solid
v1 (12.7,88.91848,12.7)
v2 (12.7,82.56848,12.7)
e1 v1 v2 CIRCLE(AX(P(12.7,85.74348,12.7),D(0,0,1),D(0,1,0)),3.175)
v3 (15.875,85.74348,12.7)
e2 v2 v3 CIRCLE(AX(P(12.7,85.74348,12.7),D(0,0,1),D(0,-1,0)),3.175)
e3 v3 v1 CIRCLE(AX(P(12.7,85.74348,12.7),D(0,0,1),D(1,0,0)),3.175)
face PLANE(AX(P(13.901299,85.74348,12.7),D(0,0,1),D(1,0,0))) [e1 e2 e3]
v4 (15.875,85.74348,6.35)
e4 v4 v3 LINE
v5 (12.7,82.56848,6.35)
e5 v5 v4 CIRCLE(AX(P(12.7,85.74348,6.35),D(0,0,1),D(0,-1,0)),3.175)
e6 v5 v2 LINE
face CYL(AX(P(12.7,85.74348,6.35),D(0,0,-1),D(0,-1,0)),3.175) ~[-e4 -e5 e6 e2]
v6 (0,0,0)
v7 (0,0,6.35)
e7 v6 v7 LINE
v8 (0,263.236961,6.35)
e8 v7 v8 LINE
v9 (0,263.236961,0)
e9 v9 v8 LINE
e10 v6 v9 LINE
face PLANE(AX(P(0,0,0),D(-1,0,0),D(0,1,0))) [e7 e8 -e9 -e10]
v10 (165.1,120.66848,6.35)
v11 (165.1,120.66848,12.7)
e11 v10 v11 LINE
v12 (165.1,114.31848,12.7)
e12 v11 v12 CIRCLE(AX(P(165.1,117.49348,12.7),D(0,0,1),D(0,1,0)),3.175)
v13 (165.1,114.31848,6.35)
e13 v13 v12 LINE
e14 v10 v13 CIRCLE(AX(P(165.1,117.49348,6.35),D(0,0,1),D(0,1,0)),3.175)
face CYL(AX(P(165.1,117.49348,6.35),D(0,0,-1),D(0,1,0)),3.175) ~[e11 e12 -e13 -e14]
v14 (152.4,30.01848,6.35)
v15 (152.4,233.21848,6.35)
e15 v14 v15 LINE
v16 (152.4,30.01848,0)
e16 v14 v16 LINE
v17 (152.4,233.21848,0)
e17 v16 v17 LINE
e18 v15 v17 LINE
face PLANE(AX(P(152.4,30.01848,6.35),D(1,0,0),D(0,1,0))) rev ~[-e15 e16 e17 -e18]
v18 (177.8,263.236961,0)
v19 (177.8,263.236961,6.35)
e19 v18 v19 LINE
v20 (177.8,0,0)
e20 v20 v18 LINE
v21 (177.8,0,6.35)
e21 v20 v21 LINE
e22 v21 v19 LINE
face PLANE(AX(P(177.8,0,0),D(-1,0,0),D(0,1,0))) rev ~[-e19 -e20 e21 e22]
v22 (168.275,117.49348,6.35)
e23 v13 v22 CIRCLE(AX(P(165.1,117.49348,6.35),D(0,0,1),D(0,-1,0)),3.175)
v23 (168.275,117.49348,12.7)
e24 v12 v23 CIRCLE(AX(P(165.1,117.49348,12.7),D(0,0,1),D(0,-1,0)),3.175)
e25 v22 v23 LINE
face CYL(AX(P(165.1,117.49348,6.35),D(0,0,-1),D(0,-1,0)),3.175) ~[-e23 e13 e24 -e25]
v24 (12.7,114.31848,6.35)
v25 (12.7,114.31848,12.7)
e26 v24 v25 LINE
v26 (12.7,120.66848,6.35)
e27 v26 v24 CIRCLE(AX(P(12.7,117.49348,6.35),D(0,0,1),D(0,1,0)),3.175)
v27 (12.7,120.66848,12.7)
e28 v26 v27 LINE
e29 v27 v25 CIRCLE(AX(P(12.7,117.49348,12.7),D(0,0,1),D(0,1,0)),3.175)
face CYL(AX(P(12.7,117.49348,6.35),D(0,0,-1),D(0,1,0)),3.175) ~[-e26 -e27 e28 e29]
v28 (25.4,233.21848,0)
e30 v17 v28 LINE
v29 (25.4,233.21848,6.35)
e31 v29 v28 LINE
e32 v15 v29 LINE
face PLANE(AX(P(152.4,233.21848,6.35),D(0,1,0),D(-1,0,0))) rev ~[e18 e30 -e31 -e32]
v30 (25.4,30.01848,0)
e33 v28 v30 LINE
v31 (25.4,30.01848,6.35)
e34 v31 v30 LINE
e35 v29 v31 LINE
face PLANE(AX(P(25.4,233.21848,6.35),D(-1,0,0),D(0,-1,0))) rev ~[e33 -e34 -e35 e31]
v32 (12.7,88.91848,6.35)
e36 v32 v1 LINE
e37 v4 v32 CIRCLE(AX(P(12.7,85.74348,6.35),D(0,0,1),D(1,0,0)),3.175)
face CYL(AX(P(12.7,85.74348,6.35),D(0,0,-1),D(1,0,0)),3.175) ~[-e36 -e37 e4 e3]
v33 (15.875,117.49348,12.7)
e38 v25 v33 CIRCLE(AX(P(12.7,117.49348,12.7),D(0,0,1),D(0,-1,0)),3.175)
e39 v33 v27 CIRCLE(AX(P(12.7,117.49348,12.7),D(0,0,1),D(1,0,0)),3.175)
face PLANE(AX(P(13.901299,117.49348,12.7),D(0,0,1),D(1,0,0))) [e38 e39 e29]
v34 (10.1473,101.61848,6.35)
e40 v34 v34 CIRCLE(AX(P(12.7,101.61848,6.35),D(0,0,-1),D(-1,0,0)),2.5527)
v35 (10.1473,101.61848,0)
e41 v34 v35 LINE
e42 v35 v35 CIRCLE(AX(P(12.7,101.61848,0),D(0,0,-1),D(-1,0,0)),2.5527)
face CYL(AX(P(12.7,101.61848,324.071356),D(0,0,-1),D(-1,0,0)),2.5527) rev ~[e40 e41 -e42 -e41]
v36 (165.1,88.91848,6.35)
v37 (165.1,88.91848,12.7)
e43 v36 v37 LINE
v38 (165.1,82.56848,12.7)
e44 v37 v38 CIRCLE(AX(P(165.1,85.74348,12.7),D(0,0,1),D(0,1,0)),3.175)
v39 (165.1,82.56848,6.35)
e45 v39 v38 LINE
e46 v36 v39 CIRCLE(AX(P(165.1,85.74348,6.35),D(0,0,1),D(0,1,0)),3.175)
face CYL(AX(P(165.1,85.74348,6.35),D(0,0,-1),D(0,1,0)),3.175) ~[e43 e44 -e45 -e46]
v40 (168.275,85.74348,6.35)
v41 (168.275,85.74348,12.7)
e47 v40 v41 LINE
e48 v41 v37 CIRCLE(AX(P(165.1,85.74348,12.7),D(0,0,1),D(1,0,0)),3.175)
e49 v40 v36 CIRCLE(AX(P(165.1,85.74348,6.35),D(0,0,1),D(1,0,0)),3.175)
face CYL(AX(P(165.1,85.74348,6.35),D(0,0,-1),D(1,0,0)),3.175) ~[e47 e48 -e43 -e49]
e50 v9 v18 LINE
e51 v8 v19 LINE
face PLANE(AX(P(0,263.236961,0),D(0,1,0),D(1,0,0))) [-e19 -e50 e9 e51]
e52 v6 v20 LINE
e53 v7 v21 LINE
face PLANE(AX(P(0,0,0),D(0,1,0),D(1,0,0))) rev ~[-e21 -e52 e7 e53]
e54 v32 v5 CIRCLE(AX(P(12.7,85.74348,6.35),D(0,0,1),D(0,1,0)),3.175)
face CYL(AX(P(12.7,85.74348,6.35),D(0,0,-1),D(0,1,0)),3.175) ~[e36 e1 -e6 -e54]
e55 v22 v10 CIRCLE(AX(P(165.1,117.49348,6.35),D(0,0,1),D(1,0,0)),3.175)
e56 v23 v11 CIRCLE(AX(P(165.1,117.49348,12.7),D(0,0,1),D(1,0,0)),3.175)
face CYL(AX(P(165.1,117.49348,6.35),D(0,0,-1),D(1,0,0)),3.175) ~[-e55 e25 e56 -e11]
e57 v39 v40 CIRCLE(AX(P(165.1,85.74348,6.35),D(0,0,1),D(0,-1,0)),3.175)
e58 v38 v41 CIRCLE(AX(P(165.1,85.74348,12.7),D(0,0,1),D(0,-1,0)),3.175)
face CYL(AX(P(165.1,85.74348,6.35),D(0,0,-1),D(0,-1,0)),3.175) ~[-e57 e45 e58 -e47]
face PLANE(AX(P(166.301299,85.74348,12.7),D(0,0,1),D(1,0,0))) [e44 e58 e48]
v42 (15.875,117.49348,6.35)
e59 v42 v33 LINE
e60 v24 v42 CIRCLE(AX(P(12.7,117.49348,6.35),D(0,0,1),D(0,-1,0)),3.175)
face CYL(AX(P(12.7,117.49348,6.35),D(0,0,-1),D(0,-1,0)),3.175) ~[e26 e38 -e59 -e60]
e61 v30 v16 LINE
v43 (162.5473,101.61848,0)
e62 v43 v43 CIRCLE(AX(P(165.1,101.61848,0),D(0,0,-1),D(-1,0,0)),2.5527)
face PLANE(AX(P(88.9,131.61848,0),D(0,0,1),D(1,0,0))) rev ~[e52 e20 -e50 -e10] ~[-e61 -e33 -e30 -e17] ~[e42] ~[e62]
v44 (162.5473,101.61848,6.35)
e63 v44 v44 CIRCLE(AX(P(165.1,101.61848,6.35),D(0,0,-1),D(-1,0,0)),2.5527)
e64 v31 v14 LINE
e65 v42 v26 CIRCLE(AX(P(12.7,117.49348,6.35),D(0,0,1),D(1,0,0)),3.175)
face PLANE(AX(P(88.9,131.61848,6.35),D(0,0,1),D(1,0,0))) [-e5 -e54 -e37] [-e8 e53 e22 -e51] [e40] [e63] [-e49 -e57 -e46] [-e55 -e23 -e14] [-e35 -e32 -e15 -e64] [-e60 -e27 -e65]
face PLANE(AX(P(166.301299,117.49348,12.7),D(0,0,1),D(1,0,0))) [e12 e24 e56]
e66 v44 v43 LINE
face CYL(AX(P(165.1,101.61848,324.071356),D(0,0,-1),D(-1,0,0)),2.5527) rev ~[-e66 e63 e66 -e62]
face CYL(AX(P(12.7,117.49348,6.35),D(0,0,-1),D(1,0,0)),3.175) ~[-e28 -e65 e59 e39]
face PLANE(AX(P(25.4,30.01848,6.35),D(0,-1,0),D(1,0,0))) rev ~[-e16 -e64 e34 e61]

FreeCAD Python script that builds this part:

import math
import FreeCAD as App
import Part
import Sketcher

V = App.Vector
Q = App.Units.Quantity

doc = App.newDocument("Part")
params = doc.addObject("Spreadsheet::Sheet", "Params")
for row, (alias, value) in enumerate([
    ("sketch1_width", "7 in"),
    ("pad1_length", "0.25 in"),
    ("sketch2_width", "5 in"),
    ("sketch2_height", "8 in"),
    ("pocket1_length", "25 mm"),
    ("sketch3_diameter", "0.201 in"),
    ("hole_diameter", "0.201 in"),
    ("sketch4_radius", "0.125 in"),
    ("pad2_length", "0.25 in"),
], start=1):
    params.set(f"A{row}", alias)
    params.set(f"B{row}", "=" + value)
    params.setAlias(f"B{row}", alias)

body = doc.addObject("PartDesign::Body", "Body")

sketch1 = body.newObject("Sketcher::SketchObject", "Sketch")
sketch1.AttachmentSupport = (doc.getObject("XY_Plane"), [""])
sketch1.MapMode = "FlatFace"
sketch1.addGeometry(Part.LineSegment(V(0, 263, 0), V(0, 0, 0)), False)
sketch1.addGeometry(Part.LineSegment(V(0, 0, 0), V(178, 0, 0)), False)
sketch1.addGeometry(Part.LineSegment(V(178, 0, 0), V(178, 263, 0)), False)
sketch1.addGeometry(Part.LineSegment(V(178, 263, 0), V(0, 263, 0)), False)
sketch1.addConstraint(Sketcher.Constraint("Coincident", 0, 2, 1, 1))
sketch1.addConstraint(Sketcher.Constraint("Coincident", 1, 2, 2, 1))
sketch1.addConstraint(Sketcher.Constraint("Coincident", 2, 2, 3, 1))
sketch1.addConstraint(Sketcher.Constraint("Coincident", 3, 2, 0, 1))
sketch1.addConstraint(Sketcher.Constraint("Vertical", 0))
sketch1.addConstraint(Sketcher.Constraint("Horizontal", 1))
sketch1.addConstraint(Sketcher.Constraint("Vertical", 2))
sketch1.addConstraint(Sketcher.Constraint("Horizontal", 3))
sketch1.addConstraint(Sketcher.Constraint("Coincident", 0, 2, -1, 1))
sketch1.addConstraint(Sketcher.Constraint("DistanceX", 1, 1, 1, 2, Q("7 in")))
sketch1.addConstraint(Sketcher.Constraint("DistanceY", 0, 2, 0, 1, 263.236961))
sketch1.setExpression("Constraints[9]", "Params.sketch1_width")
pad1 = body.newObject("PartDesign::Pad", "Pad")
pad1.Profile = sketch1
pad1.setExpression("Length", "Params.pad1_length")

sketch2 = body.newObject("Sketcher::SketchObject", "Sketch001")
sketch2.AttachmentSupport = (doc.getObject("XY_Plane"), [""])
sketch2.MapMode = "FlatFace"
sketch2.AttachmentOffset = App.Placement(V(0, 0, 0.25 * 25.4), App.Rotation())
sketch2.addGeometry(Part.LineSegment(V(25, 233, 0), V(25, 30, 0)), False)
sketch2.addGeometry(Part.LineSegment(V(25, 30, 0), V(152, 30, 0)), False)
sketch2.addGeometry(Part.LineSegment(V(152, 30, 0), V(152, 233, 0)), False)
sketch2.addGeometry(Part.LineSegment(V(152, 233, 0), V(25, 233, 0)), False)
sketch2.addConstraint(Sketcher.Constraint("Coincident", 0, 2, 1, 1))
sketch2.addConstraint(Sketcher.Constraint("Coincident", 1, 2, 2, 1))
sketch2.addConstraint(Sketcher.Constraint("Coincident", 2, 2, 3, 1))
sketch2.addConstraint(Sketcher.Constraint("Coincident", 3, 2, 0, 1))
sketch2.addConstraint(Sketcher.Constraint("Vertical", 0))
sketch2.addConstraint(Sketcher.Constraint("Horizontal", 1))
sketch2.addConstraint(Sketcher.Constraint("Vertical", 2))
sketch2.addConstraint(Sketcher.Constraint("Horizontal", 3))
sketch2.addConstraint(Sketcher.Constraint("DistanceX", 1, 1, 1, 2, Q("5 in")))
sketch2.addConstraint(Sketcher.Constraint("DistanceY", 0, 2, 0, 1, Q("8 in")))
sketch2.addConstraint(Sketcher.Constraint("DistanceX", -1, 1, 0, 2, Q("1 in")))
sketch2.addConstraint(Sketcher.Constraint("DistanceY", -1, 1, 0, 2, 30.01848))
sketch2.setExpression("Constraints[8]", "Params.sketch2_width")
sketch2.setExpression("Constraints[9]", "Params.sketch2_height")
pocket1 = body.newObject("PartDesign::Pocket", "Pocket")
pocket1.Profile = sketch2
pocket1.setExpression("Length", "Params.pocket1_length")

sketch3 = body.newObject("Sketcher::SketchObject", "Sketch002")
sketch3.AttachmentSupport = (doc.getObject("XY_Plane"), [""])
sketch3.MapMode = "FlatFace"
sketch3.AttachmentOffset = App.Placement(V(0, 0, 0.25 * 25.4), App.Rotation())
sketch3.addGeometry(Part.Circle(V(12.7, 101.6, 0), V(0, 0, 1), 2.6), False)
sketch3.addGeometry(Part.Circle(V(165.1, 101.6, 0), V(0, 0, 1), 2.6), False)
sketch3.addConstraint(Sketcher.Constraint("Equal", 0, 1))
sketch3.addConstraint(Sketcher.Constraint("Horizontal", 0, 3, 1, 3))
sketch3.addConstraint(Sketcher.Constraint("Diameter", 0, Q("0.201 in")))
sketch3.addConstraint(Sketcher.Constraint("DistanceX", 0, 3, 1, 3, Q("6 in")))
sketch3.addConstraint(Sketcher.Constraint("DistanceX", -1, 1, 0, 3, Q("0.5 in")))
sketch3.addConstraint(Sketcher.Constraint("DistanceY", -1, 1, 0, 3, 101.61848))
sketch3.setExpression("Constraints[2]", "Params.sketch3_diameter")
doc.recompute()
hole = body.newObject("PartDesign::Hole", "Hole")
hole.Profile = sketch3
hole.ThreadType = "None"
hole.setExpression("Diameter", "Params.hole_diameter")
hole.DepthType = "ThroughAll"

sketch4 = body.newObject("Sketcher::SketchObject", "Sketch003")
sketch4.AttachmentSupport = (doc.getObject("XY_Plane"), [""])
sketch4.MapMode = "FlatFace"
sketch4.AttachmentOffset = App.Placement(V(0, 0, 0.25 * 25.4), App.Rotation())
sketch4.addGeometry(Part.ArcOfCircle(Part.Circle(V(165.1, 117.5, 0), V(0, 0, 1), 3.2), math.radians(0), math.radians(90)), False)
sketch4.addGeometry(Part.ArcOfCircle(Part.Circle(V(165.1, 117.5, 0), V(0, 0, 1), 3.2), math.radians(90), math.radians(270)), False)
sketch4.addGeometry(Part.ArcOfCircle(Part.Circle(V(165.1, 117.5, 0), V(0, 0, 1), 3.2), math.radians(-90), math.radians(0)), False)
sketch4.addGeometry(Part.ArcOfCircle(Part.Circle(V(165.1, 85.7, 0), V(0, 0, 1), 3.2), math.radians(0), math.radians(90)), False)
sketch4.addGeometry(Part.ArcOfCircle(Part.Circle(V(165.1, 85.7, 0), V(0, 0, 1), 3.2), math.radians(90), math.radians(270)), False)
sketch4.addGeometry(Part.ArcOfCircle(Part.Circle(V(165.1, 85.7, 0), V(0, 0, 1), 3.2), math.radians(-90), math.radians(0)), False)
sketch4.addGeometry(Part.ArcOfCircle(Part.Circle(V(12.7, 85.7, 0), V(0, 0, 1), 3.2), math.radians(0), math.radians(90)), False)
sketch4.addGeometry(Part.ArcOfCircle(Part.Circle(V(12.7, 85.7, 0), V(0, 0, 1), 3.2), math.radians(90), math.radians(270)), False)
sketch4.addGeometry(Part.ArcOfCircle(Part.Circle(V(12.7, 85.7, 0), V(0, 0, 1), 3.2), math.radians(-90), math.radians(0)), False)
sketch4.addGeometry(Part.ArcOfCircle(Part.Circle(V(12.7, 117.5, 0), V(0, 0, 1), 3.2), math.radians(0), math.radians(90)), False)
sketch4.addGeometry(Part.ArcOfCircle(Part.Circle(V(12.7, 117.5, 0), V(0, 0, 1), 3.2), math.radians(90), math.radians(270)), False)
sketch4.addGeometry(Part.ArcOfCircle(Part.Circle(V(12.7, 117.5, 0), V(0, 0, 1), 3.2), math.radians(-90), math.radians(0)), False)
sketch4.addConstraint(Sketcher.Constraint("Tangent", 0, 2, 1, 1))
sketch4.addConstraint(Sketcher.Constraint("Tangent", 1, 2, 2, 1))
sketch4.addConstraint(Sketcher.Constraint("Tangent", 2, 2, 0, 1))
sketch4.addConstraint(Sketcher.Constraint("Tangent", 3, 2, 4, 1))
sketch4.addConstraint(Sketcher.Constraint("Tangent", 4, 2, 5, 1))
sketch4.addConstraint(Sketcher.Constraint("Tangent", 5, 2, 3, 1))
sketch4.addConstraint(Sketcher.Constraint("Tangent", 6, 2, 7, 1))
sketch4.addConstraint(Sketcher.Constraint("Tangent", 7, 2, 8, 1))
sketch4.addConstraint(Sketcher.Constraint("Tangent", 8, 2, 6, 1))
sketch4.addConstraint(Sketcher.Constraint("Tangent", 9, 2, 10, 1))
sketch4.addConstraint(Sketcher.Constraint("Tangent", 10, 2, 11, 1))
sketch4.addConstraint(Sketcher.Constraint("Tangent", 11, 2, 9, 1))
sketch4.addConstraint(Sketcher.Constraint("Equal", 2, 3))
sketch4.addConstraint(Sketcher.Constraint("Equal", 5, 6))
sketch4.addConstraint(Sketcher.Constraint("Equal", 8, 9))
sketch4.addConstraint(Sketcher.Constraint("Horizontal", 5, 3, 6, 3))
sketch4.addConstraint(Sketcher.Constraint("Horizontal", 2, 3, 9, 3))
sketch4.addConstraint(Sketcher.Constraint("Horizontal", 11, 3, 2, 2))
sketch4.addConstraint(Sketcher.Constraint("Horizontal", 8, 3, 5, 2))
sketch4.addConstraint(Sketcher.Constraint("Horizontal", 5, 2, 8, 2))
sketch4.addConstraint(Sketcher.Constraint("Horizontal", 2, 2, 11, 2))
sketch4.addConstraint(Sketcher.Constraint("Vertical", 2, 3, 3, 3))
sketch4.addConstraint(Sketcher.Constraint("Vertical", 8, 3, 9, 3))
sketch4.addConstraint(Sketcher.Constraint("Vertical", 5, 3, 0, 2))
sketch4.addConstraint(Sketcher.Constraint("Vertical", 0, 2, 1, 2))
sketch4.addConstraint(Sketcher.Constraint("Vertical", 1, 2, 3, 2))
sketch4.addConstraint(Sketcher.Constraint("Vertical", 3, 2, 4, 2))
sketch4.addConstraint(Sketcher.Constraint("Vertical", 11, 3, 6, 2))
sketch4.addConstraint(Sketcher.Constraint("Vertical", 6, 2, 7, 2))
sketch4.addConstraint(Sketcher.Constraint("Vertical", 7, 2, 9, 2))
sketch4.addConstraint(Sketcher.Constraint("Vertical", 9, 2, 10, 2))
sketch4.addConstraint(Sketcher.Constraint("Radius", 0, Q("0.125 in")))
sketch4.addConstraint(Sketcher.Constraint("DistanceX", 6, 3, 3, 3, Q("6 in")))
sketch4.addConstraint(Sketcher.Constraint("DistanceY", 3, 2, 1, 2, Q("1 in")))
sketch4.addConstraint(Sketcher.Constraint("DistanceX", -1, 1, 0, 3, Q("6.5 in")))
sketch4.addConstraint(Sketcher.Constraint("DistanceY", -1, 1, 0, 3, 117.49348))
sketch4.setExpression("Constraints[31]", "Params.sketch4_radius")
pad2 = body.newObject("PartDesign::Pad", "Pad001")
pad2.Profile = sketch4
pad2.setExpression("Length", "Params.pad2_length")

doc.recompute()
